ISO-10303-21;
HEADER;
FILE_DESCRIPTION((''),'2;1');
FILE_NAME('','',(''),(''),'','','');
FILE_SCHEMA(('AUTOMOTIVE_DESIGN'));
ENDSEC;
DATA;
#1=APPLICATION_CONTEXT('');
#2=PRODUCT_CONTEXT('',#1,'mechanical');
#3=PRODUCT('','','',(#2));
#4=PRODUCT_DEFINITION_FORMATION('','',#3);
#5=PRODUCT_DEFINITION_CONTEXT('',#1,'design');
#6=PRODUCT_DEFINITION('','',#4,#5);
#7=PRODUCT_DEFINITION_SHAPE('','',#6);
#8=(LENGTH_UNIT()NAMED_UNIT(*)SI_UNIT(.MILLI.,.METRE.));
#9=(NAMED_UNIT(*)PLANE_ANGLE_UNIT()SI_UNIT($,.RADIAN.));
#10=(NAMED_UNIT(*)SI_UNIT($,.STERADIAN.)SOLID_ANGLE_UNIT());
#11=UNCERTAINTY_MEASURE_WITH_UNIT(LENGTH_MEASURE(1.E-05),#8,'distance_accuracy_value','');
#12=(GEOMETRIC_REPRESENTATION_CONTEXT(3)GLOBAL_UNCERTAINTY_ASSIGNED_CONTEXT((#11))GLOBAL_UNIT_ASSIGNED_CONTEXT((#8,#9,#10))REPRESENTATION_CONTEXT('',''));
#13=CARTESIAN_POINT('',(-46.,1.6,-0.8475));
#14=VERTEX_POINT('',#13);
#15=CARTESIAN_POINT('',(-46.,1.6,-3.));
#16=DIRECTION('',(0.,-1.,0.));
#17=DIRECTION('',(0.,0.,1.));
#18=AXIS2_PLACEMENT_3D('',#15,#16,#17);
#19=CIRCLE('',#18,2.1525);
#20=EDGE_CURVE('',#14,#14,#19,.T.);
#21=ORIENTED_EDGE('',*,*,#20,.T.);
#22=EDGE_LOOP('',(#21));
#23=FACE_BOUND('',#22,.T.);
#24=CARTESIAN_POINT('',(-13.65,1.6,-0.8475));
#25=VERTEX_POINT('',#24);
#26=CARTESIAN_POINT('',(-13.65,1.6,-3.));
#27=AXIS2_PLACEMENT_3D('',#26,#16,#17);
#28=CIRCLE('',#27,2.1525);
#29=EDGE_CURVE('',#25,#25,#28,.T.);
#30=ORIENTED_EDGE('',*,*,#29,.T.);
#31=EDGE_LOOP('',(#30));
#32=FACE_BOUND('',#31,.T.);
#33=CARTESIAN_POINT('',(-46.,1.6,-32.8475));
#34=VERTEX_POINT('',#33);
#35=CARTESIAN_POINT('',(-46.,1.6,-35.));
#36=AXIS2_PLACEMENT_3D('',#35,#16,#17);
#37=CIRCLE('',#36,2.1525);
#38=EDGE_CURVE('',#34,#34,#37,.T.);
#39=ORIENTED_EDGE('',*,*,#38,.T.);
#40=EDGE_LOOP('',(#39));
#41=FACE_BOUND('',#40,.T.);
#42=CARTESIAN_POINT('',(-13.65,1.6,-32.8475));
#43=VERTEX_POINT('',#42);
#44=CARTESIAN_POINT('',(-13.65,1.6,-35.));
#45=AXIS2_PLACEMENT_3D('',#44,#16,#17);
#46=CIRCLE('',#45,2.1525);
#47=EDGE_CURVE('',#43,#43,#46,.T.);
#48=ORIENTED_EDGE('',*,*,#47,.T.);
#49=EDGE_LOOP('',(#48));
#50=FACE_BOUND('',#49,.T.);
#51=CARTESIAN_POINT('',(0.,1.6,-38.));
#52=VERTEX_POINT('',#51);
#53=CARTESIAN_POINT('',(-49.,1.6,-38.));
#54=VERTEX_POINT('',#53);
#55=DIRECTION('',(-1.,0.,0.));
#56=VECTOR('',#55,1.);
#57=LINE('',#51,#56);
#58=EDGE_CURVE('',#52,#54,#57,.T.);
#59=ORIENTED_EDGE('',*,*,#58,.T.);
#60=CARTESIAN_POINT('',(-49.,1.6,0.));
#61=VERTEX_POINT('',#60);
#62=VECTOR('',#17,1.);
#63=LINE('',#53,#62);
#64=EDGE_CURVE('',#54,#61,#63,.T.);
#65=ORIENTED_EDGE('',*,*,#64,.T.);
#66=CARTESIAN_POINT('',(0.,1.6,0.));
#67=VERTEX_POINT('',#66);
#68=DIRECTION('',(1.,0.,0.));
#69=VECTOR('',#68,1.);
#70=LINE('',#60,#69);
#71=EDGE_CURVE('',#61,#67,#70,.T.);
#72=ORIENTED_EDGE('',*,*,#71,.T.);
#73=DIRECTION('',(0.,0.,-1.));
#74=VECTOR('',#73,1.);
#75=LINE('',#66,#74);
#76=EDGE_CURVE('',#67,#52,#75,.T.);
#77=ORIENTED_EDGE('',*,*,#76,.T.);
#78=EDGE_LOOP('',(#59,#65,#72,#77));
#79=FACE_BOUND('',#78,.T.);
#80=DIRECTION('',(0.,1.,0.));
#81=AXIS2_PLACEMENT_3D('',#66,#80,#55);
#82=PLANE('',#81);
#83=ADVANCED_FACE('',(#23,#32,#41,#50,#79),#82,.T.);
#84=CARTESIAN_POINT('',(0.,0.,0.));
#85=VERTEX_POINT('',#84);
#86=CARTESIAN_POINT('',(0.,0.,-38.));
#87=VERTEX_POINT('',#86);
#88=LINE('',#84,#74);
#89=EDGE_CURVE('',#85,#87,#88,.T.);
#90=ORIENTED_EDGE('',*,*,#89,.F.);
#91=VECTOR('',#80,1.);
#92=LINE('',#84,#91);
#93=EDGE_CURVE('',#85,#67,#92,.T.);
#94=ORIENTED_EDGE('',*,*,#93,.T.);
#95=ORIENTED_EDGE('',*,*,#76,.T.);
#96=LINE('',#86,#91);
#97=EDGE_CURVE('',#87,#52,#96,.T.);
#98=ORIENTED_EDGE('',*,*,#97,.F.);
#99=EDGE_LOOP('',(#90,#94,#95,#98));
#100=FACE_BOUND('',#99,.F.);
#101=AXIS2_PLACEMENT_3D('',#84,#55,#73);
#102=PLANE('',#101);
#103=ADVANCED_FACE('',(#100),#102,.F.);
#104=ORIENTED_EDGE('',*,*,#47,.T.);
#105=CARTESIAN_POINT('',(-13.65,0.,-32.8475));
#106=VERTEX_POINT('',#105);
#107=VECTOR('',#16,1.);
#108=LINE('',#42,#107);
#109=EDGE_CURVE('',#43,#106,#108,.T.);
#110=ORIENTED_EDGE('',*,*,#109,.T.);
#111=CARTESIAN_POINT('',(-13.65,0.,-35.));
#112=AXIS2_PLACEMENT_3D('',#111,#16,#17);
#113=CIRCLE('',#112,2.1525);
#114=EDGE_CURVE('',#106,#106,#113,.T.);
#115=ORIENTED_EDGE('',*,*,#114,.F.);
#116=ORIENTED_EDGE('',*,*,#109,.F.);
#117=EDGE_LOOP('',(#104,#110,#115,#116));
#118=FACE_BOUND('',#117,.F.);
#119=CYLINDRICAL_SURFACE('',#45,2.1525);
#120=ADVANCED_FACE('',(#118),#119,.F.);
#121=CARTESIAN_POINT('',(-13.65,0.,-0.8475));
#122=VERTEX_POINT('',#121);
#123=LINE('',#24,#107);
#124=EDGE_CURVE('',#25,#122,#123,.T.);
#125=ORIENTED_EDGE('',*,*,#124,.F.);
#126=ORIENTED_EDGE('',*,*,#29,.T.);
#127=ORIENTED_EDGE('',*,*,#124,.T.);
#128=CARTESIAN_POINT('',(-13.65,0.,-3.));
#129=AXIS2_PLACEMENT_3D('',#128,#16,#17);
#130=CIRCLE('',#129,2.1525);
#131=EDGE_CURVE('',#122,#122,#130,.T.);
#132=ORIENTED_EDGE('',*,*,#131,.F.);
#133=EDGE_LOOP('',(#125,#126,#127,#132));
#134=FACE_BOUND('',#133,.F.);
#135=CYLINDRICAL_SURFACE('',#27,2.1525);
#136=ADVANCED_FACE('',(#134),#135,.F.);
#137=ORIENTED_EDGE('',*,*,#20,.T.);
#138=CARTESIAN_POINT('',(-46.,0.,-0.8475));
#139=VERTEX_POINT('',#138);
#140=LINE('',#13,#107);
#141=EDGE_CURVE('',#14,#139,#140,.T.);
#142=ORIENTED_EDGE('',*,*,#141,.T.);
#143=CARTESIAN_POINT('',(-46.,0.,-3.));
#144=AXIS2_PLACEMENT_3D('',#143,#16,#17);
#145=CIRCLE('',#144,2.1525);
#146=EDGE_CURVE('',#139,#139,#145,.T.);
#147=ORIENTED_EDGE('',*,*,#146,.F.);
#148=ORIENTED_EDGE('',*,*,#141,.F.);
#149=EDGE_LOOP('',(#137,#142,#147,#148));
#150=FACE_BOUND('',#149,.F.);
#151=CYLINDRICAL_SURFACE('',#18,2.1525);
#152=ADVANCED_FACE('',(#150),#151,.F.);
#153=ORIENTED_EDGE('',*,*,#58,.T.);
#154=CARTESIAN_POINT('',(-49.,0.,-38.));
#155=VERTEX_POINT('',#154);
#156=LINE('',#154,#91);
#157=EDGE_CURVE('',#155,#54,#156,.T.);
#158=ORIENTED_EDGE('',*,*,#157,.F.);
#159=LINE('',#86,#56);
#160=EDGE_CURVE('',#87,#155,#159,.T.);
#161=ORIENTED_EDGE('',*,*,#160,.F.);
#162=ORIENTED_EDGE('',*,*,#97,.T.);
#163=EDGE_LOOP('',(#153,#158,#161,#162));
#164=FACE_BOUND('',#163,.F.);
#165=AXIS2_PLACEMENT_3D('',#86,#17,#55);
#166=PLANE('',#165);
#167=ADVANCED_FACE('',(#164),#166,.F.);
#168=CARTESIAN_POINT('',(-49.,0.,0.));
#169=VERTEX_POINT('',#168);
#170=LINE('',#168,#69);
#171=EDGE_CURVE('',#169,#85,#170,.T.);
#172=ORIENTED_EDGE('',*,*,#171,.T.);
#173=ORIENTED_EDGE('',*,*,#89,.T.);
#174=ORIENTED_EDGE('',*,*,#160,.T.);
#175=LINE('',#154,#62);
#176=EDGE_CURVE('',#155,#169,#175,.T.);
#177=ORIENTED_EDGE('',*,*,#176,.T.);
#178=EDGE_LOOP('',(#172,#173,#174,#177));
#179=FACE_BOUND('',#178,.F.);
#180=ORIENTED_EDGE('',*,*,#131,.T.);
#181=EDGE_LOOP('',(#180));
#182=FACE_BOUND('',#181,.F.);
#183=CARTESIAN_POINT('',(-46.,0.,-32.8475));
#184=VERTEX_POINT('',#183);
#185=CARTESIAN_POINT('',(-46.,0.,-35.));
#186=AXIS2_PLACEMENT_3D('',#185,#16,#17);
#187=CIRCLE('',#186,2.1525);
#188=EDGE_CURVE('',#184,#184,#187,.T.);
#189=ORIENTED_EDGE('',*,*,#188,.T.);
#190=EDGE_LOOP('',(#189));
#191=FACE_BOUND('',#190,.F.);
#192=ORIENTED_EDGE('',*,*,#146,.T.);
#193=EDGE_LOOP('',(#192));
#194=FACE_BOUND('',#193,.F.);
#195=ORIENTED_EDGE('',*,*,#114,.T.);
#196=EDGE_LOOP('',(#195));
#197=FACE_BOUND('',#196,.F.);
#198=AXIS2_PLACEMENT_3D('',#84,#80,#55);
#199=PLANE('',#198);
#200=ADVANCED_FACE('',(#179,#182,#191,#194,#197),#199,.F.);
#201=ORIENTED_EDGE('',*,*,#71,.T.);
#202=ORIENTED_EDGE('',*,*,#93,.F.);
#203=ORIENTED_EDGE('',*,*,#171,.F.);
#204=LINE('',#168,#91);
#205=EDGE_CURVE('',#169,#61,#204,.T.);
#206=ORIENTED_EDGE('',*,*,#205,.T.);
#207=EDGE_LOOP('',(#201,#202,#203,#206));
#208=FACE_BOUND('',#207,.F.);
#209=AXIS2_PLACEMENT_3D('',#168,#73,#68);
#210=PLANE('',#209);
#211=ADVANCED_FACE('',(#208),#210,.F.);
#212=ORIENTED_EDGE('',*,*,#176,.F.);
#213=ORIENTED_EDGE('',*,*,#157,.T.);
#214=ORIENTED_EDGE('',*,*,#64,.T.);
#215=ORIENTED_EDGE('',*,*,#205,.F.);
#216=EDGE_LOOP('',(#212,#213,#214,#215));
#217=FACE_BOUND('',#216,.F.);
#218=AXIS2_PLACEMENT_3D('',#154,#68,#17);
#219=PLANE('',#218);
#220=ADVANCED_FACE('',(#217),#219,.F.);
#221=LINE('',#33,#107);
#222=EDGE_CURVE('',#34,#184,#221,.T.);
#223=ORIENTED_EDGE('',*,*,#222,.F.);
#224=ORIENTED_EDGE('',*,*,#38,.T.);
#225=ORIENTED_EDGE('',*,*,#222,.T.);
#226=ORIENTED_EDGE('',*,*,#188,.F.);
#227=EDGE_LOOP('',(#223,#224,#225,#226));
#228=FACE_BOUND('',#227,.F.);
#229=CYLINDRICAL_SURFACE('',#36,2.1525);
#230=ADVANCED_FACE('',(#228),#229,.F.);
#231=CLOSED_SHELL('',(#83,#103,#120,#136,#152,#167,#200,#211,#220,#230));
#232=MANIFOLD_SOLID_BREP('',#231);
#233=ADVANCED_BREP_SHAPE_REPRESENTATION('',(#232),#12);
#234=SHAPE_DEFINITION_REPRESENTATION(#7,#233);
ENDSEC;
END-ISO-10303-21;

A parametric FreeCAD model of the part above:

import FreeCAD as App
import Part
import Sketcher

V = App.Vector
Q = App.Units.Quantity


def add_polygon(sketch, points):
    """Adds a closed chain of lines whose ends are joined by coincident constraints."""
    first, n = sketch.GeometryCount, len(points)
    for a, b in zip(points, points[1:] + points[:1]):
        sketch.addGeometry(Part.LineSegment(App.Vector(*a, 0), App.Vector(*b, 0)), False)
    for i in range(n):
        sketch.addConstraint(Sketcher.Constraint("Coincident", first + i, 2, first + (i + 1) % n, 1))

doc = App.newDocument("Part")
params = doc.addObject("Spreadsheet::Sheet", "Params")
for row, (alias, value) in enumerate([
    ("sketch1_width", "49 mm"),
    ("sketch1_height", "38 mm"),
    ("pad1_length", "1.6 mm"),
    ("hole_diameter", "4.305 mm"),
], start=1):
    params.set(f"A{row}", alias)
    params.set(f"B{row}", "=" + value)
    params.setAlias(f"B{row}", alias)

body = doc.addObject("PartDesign::Body", "Body")

sketch1 = body.newObject("Sketcher::SketchObject", "Sketch")
sketch1.AttachmentSupport = (doc.getObject("XZ_Plane"), [""])
sketch1.MapMode = "FlatFace"
add_polygon(sketch1, [(-49, -38), (-49, 0), (0, 0), (0, -38)])
sketch1.addConstraint([
    Sketcher.Constraint("Vertical", 0),
    Sketcher.Constraint("Horizontal", 1),
    Sketcher.Constraint("Vertical", 2),
    Sketcher.Constraint("Horizontal", 3),
    Sketcher.Constraint("Coincident", 1, 2, -1, 1),
    Sketcher.Constraint("DistanceX", 1, 1, 1, 2, Q("49 mm")),
    Sketcher.Constraint("DistanceY", 0, 1, 0, 2, Q("38 mm")),
])
sketch1.setExpression("Constraints[9]", "Params.sketch1_width")
sketch1.setExpression("Constraints[10]", "Params.sketch1_height")
pad1 = body.newObject("PartDesign::Pad", "Pad")
pad1.Profile = sketch1
pad1.setExpression("Length", "Params.pad1_length")
pad1.Reversed = True

sketch2 = body.newObject("Sketcher::SketchObject", "Sketch001")
sketch2.AttachmentSupport = (doc.getObject("XZ_Plane"), [""])
sketch2.MapMode = "FlatFace"
sketch2.AttachmentOffset = App.Placement(V(0, 0, -1.6), App.Rotation())
sketch2.addGeometry([
    Part.Circle(V(-13.65, -3, 0), V(0, 0, 1), 2.1525),
    Part.Circle(V(-13.65, -35, 0), V(0, 0, 1), 2.1525),
    Part.Circle(V(-46, -35, 0), V(0, 0, 1), 2.1525),
    Part.Circle(V(-46, -3, 0), V(0, 0, 1), 2.1525),
], False)
sketch2.addConstraint([
    Sketcher.Constraint("Equal", 0, 1),
    Sketcher.Constraint("Equal", 1, 2),
    Sketcher.Constraint("Equal", 2, 3),
    Sketcher.Constraint("Horizontal", 1, 3, 2, 3),
    Sketcher.Constraint("Horizontal", 0, 3, 3, 3),
    Sketcher.Constraint("Vertical", 0, 3, 1, 3),
    Sketcher.Constraint("Vertical", 2, 3, 3, 3),
    Sketcher.Constraint("Diameter", 0, Q("4.305 mm")),
    Sketcher.Constraint("DistanceY", 0, 3, -1, 1, Q("3 mm")),
    Sketcher.Constraint("DistanceY", 1, 3, -1, 1, Q("35 mm")),
    Sketcher.Constraint("DistanceX", 2, 3, -1, 1, Q("46 mm")),
    Sketcher.Constraint("DistanceX", 0, 3, -1, 1, Q("13.65 mm")),
])
doc.recompute()
hole = body.newObject("PartDesign::Hole", "Hole")
hole.Profile = sketch2
hole.ThreadType = "None"
hole.setExpression("Diameter", "Params.hole_diameter")
hole.DepthType = "ThroughAll"
hole.Reversed = True

doc.recompute()
